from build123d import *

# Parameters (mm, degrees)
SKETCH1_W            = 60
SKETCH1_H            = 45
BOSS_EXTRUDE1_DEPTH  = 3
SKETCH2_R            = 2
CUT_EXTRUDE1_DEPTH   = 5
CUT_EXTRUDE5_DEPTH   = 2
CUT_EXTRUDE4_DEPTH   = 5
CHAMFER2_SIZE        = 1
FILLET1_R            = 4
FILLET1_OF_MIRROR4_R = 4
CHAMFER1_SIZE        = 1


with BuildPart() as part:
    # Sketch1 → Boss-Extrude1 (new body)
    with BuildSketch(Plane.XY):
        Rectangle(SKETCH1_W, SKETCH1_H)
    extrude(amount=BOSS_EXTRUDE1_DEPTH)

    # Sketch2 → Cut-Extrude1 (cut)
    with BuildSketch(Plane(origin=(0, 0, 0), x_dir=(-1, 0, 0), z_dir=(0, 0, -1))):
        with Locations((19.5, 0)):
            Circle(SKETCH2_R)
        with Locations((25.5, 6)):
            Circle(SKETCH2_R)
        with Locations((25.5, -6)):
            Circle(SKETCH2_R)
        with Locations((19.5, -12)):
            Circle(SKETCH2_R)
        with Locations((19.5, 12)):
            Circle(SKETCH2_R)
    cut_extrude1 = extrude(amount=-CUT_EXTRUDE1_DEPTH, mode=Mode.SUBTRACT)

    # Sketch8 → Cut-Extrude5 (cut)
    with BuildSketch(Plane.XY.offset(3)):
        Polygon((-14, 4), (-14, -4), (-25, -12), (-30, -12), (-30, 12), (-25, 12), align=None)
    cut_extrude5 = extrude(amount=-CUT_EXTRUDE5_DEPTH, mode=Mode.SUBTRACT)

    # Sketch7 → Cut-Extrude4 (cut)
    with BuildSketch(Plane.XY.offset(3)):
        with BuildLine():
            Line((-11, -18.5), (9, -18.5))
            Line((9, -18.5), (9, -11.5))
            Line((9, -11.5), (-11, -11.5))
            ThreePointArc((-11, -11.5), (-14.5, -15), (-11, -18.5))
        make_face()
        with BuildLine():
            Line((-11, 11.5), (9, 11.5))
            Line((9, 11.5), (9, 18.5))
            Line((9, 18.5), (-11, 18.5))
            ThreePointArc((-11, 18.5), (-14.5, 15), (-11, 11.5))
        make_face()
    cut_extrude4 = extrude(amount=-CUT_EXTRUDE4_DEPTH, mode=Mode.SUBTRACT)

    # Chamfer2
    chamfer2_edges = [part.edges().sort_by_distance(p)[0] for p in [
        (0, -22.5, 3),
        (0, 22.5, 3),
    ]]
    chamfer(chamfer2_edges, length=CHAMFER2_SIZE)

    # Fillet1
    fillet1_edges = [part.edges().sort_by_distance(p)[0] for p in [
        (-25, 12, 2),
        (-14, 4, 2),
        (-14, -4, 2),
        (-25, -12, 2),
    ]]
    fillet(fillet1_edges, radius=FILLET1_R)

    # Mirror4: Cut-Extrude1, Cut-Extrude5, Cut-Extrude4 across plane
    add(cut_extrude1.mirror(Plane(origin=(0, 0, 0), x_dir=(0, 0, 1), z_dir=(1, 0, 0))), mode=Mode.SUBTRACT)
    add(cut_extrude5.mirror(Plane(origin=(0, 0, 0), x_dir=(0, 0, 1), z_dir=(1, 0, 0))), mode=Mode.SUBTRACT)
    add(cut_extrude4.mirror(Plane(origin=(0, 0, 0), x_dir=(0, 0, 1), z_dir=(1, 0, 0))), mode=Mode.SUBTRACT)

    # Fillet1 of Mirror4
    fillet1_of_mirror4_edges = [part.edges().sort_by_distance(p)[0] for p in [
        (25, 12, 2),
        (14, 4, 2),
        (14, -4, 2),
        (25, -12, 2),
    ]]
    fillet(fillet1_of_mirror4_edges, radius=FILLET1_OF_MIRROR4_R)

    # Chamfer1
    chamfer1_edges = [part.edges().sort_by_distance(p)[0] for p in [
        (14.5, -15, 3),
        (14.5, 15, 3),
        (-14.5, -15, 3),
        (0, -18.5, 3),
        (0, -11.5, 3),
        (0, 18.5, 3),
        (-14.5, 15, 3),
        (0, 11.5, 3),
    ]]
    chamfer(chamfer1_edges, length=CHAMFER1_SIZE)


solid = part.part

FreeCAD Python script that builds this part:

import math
import FreeCAD as App
import Part
import Sketcher

V = App.Vector
Q = App.Units.Quantity


def edges_at(feature, points):
    """Names of the edges that pass closest to the given points."""
    edges = feature.Shape.Edges
    near = lambda p: min(range(len(edges)), key=lambda i: edges[i].distToShape(Part.Vertex(*p))[0])
    return sorted({f"Edge{near(p) + 1}" for p in points})

doc = App.newDocument("Part")
params = doc.addObject("Spreadsheet::Sheet", "Params")
for row, (alias, value) in enumerate([
    ("sketch1_width", "60 mm"),
    ("sketch1_height", "45 mm"),
    ("pad1_length", "3 mm"),
    ("sketch2_diameter", "4 mm"),
    ("pocket1_length", "5 mm"),
    ("sketch3_width", "5 mm"),
    ("sketch3_height", "8 mm"),
    ("sketch3_height2", "24 mm"),
    ("pocket2_length", "2 mm"),
    ("sketch4_radius", "3.5 mm"),
    ("sketch4_width", "20 mm"),
    ("pocket3_length", "5 mm"),
    ("chamfer_size", "1 mm"),
    ("fillet_radius", "4 mm"),
    ("fillet2_radius", "4 mm"),
    ("chamfer2_size", "1 mm"),
], start=1):
    params.set(f"A{row}", alias)
    params.set(f"B{row}", "=" + value)
    params.setAlias(f"B{row}", alias)

body = doc.addObject("PartDesign::Body", "Body")

# Sketch on XY plane
sketch1 = doc.addObject("Sketcher::SketchObject", "Sketch")
body.addObject(sketch1)
sketch1.AttachmentSupport = (doc.XY_Plane, [""])
sketch1.MapMode = "FlatFace"
sketch1.addGeometry([
    Part.LineSegment(V(-30, 22, 0), V(-30, -22, 0)),
    Part.LineSegment(V(-30, -22, 0), V(30, -22, 0)),
    Part.LineSegment(V(30, -22, 0), V(30, 22, 0)),
    Part.LineSegment(V(30, 22, 0), V(-30, 22, 0)),
], False)
sketch1.addConstraint([
    Sketcher.Constraint("Coincident", 0, 2, 1, 1),
    Sketcher.Constraint("Coincident", 1, 2, 2, 1),
    Sketcher.Constraint("Coincident", 2, 2, 3, 1),
    Sketcher.Constraint("Coincident", 3, 2, 0, 1),
    Sketcher.Constraint("Vertical", 0),
    Sketcher.Constraint("Horizontal", 1),
    Sketcher.Constraint("Vertical", 2),
    Sketcher.Constraint("Horizontal", 3),
    Sketcher.Constraint("Symmetric", 0, 2, 2, 2, -1, 1),
    Sketcher.Constraint("DistanceX", 1, 1, 1, 2, Q("60 mm")),
    Sketcher.Constraint("DistanceY", 0, 2, 0, 1, Q("45 mm")),
])
sketch1.setExpression("Constraints[9]", "Params.sketch1_width")
sketch1.setExpression("Constraints[10]", "Params.sketch1_height")
pad1 = doc.addObject("PartDesign::Pad", "Pad")
body.addObject(pad1)
pad1.Profile = sketch1
pad1.setExpression("Length", "Params.pad1_length")

# Sketch on XY plane
sketch2 = doc.addObject("Sketcher::SketchObject", "Sketch001")
body.addObject(sketch2)
sketch2.AttachmentSupport = (doc.XY_Plane, [""])
sketch2.MapMode = "FlatFace"
sketch2.addGeometry([
    Part.Circle(V(-19.5, 0, 0), V(0, 0, 1), 2),  # 0
    Part.Circle(V(-25.5, 6, 0), V(0, 0, 1), 2),  # 1
    Part.Circle(V(-25.5, -6, 0), V(0, 0, 1), 2),  # 2
    Part.Circle(V(-19.5, -12, 0), V(0, 0, 1), 2),  # 3
    Part.Circle(V(-19.5, 12, 0), V(0, 0, 1), 2),  # 4
], False)
sketch2.addConstraint([
    Sketcher.Constraint("Equal", 0, 1),
    Sketcher.Constraint("Equal", 1, 2),
    Sketcher.Constraint("Equal", 2, 3),
    Sketcher.Constraint("Equal", 3, 4),
    Sketcher.Constraint("Symmetric", 1, 3, 2, 3, -1),
    Sketcher.Constraint("Symmetric", 3, 3, 4, 3, -1),
    Sketcher.Constraint("PointOnObject", 0, 3, -1),
    Sketcher.Constraint("Vertical", 0, 3, 3, 3),
    Sketcher.Constraint("Diameter", 0, Q("4 mm")),
    Sketcher.Constraint("DistanceY", -1, 1, 1, 3, Q("6 mm")),
    Sketcher.Constraint("DistanceY", 3, 3, -1, 1, Q("12 mm")),
    Sketcher.Constraint("DistanceX", 1, 3, 0, 3, Q("6 mm")),
    Sketcher.Constraint("DistanceX", 0, 3, -1, 1, Q("19.5 mm")),
])
sketch2.setExpression("Constraints[8]", "Params.sketch2_diameter")
pocket1 = doc.addObject("PartDesign::Pocket", "Pocket")
body.addObject(pocket1)
pocket1.Profile = sketch2
pocket1.setExpression("Length", "Params.pocket1_length")
pocket1.Reversed = True

# Sketch on XY plane
sketch3 = doc.addObject("Sketcher::SketchObject", "Sketch002")
body.addObject(sketch3)
sketch3.AttachmentSupport = (doc.XY_Plane, [""])
sketch3.MapMode = "FlatFace"
sketch3.AttachmentOffset = App.Placement(V(0, 0, 3), App.Rotation())
sketch3.addGeometry([
    Part.LineSegment(V(-14, -4, 0), V(-14, 4, 0)),  # 0
    Part.LineSegment(V(-14, 4, 0), V(-25, 12, 0)),  # 1
    Part.LineSegment(V(-25, 12, 0), V(-30, 12, 0)),  # 2
    Part.LineSegment(V(-30, 12, 0), V(-30, -12, 0)),  # 3
    Part.LineSegment(V(-30, -12, 0), V(-25, -12, 0)),  # 4
    Part.LineSegment(V(-25, -12, 0), V(-14, -4, 0)),  # 5
], False)
sketch3.addConstraint([
    Sketcher.Constraint("Coincident", 0, 2, 1, 1),
    Sketcher.Constraint("Coincident", 1, 2, 2, 1),
    Sketcher.Constraint("Coincident", 2, 2, 3, 1),
    Sketcher.Constraint("Coincident", 3, 2, 4, 1),
    Sketcher.Constraint("Coincident", 4, 2, 5, 1),
    Sketcher.Constraint("Coincident", 5, 2, 0, 1),
    Sketcher.Constraint("Vertical", 0),
    Sketcher.Constraint("Horizontal", 2),
    Sketcher.Constraint("Vertical", 3),
    Sketcher.Constraint("Horizontal", 4),
    Sketcher.Constraint("Symmetric", 1, 2, 4, 2, -1),
    Sketcher.Constraint("Equal", 1, 5),
    Sketcher.Constraint("DistanceX", 2, 2, 2, 1, Q("5 mm")),
    Sketcher.Constraint("DistanceY", 0, 1, 0, 2, Q("8 mm")),
    Sketcher.Constraint("DistanceY", 3, 2, 3, 1, Q("24 mm")),
    Sketcher.Constraint("DistanceX", 0, 2, -1, 1, Q("14 mm")),
    Sketcher.Constraint("DistanceX", 1, 2, -1, 1, Q("25 mm")),
])
sketch3.setExpression("Constraints[12]", "Params.sketch3_width")
sketch3.setExpression("Constraints[13]", "Params.sketch3_height")
sketch3.setExpression("Constraints[14]", "Params.sketch3_height2")
pocket2 = doc.addObject("PartDesign::Pocket", "Pocket001")
body.addObject(pocket2)
pocket2.Profile = sketch3
pocket2.setExpression("Length", "Params.pocket2_length")

# Sketch on XY plane
sketch4 = doc.addObject("Sketcher::SketchObject", "Sketch003")
body.addObject(sketch4)
sketch4.AttachmentSupport = (doc.XY_Plane, [""])
sketch4.MapMode = "FlatFace"
sketch4.AttachmentOffset = App.Placement(V(0, 0, 3), App.Rotation())
sketch4.addGeometry([
    Part.LineSegment(V(-11, -18.5, 0), V(9, -18.5, 0)),  # 0
    Part.LineSegment(V(9, -18.5, 0), V(9, -11.5, 0)),  # 1
    Part.LineSegment(V(9, -11.5, 0), V(-11, -11.5, 0)),  # 2
    Part.ArcOfCircle(Part.Circle(V(-11, -15, 0), V(0, 0, 1), 3.5), math.radians(90), math.radians(270)),  # 3
    Part.LineSegment(V(-11, 11.5, 0), V(9, 11.5, 0)),  # 4
    Part.LineSegment(V(9, 11.5, 0), V(9, 18.5, 0)),  # 5
    Part.LineSegment(V(9, 18.5, 0), V(-11, 18.5, 0)),  # 6
    Part.ArcOfCircle(Part.Circle(V(-11, 15, 0), V(0, 0, 1), 3.5), math.radians(90), math.radians(270)),  # 7
], False)
sketch4.addConstraint([
    Sketcher.Constraint("Coincident", 0, 2, 1, 1),
    Sketcher.Constraint("Coincident", 1, 2, 2, 1),
    Sketcher.Constraint("Tangent", 2, 2, 3, 1),
    Sketcher.Constraint("Tangent", 3, 2, 0, 1),
    Sketcher.Constraint("Coincident", 4, 2, 5, 1),
    Sketcher.Constraint("Coincident", 5, 2, 6, 1),
    Sketcher.Constraint("Tangent", 6, 2, 7, 1),
    Sketcher.Constraint("Tangent", 7, 2, 4, 1),
    Sketcher.Constraint("Horizontal", 0),
    Sketcher.Constraint("Vertical", 1),
    Sketcher.Constraint("Horizontal", 2),
    Sketcher.Constraint("Horizontal", 4),
    Sketcher.Constraint("Vertical", 5),
    Sketcher.Constraint("Horizontal", 6),
    Sketcher.Constraint("Equal", 3, 7),
    Sketcher.Constraint("Symmetric", 3, 3, 7, 3, -1),
    Sketcher.Constraint("Vertical", 1, 2, 4, 2),
    Sketcher.Constraint("Radius", 3, Q("3.5 mm")),
    Sketcher.Constraint("DistanceX", 0, 1, 0, 2, Q("20 mm")),
    Sketcher.Constraint("DistanceX", 3, 3, -1, 1, Q("11 mm")),
    Sketcher.Constraint("DistanceY", 3, 3, -1, 1, Q("15 mm")),
])
sketch4.setExpression("Constraints[17]", "Params.sketch4_radius")
sketch4.setExpression("Constraints[18]", "Params.sketch4_width")
pocket3 = doc.addObject("PartDesign::Pocket", "Pocket002")
body.addObject(pocket3)
pocket3.Profile = sketch4
pocket3.setExpression("Length", "Params.pocket3_length")
doc.recompute()

chamfer = doc.addObject("PartDesign::Chamfer", "Chamfer")
body.addObject(chamfer)
chamfer.Base = (pocket3, edges_at(pocket3, [(0, -22.5, 3), (0, 22.5, 3)]))
chamfer.setExpression("Size", "Params.chamfer_size")
doc.recompute()

fillet = doc.addObject("PartDesign::Fillet", "Fillet")
body.addObject(fillet)
fillet.Base = (chamfer, edges_at(chamfer, [
    (-25, 12, 2),
    (-14, 4, 2),
    (-14, -4, 2),
    (-25, -12, 2),
]))
fillet.setExpression("Radius", "Params.fillet_radius")
doc.recompute()

mirrored = doc.addObject("PartDesign::Mirrored", "Mirrored")
body.addObject(mirrored)
mirrored.Originals = [pocket1, pocket2, pocket3]
mirrored.MirrorPlane = (doc.YZ_Plane, [""])
body.Tip = mirrored
doc.recompute()

fillet2 = doc.addObject("PartDesign::Fillet", "Fillet001")
body.addObject(fillet2)
fillet2.Base = (mirrored, edges_at(mirrored, [
    (25, 12, 2),
    (14, 4, 2),
    (14, -4, 2),
    (25, -12, 2),
]))
fillet2.setExpression("Radius", "Params.fillet2_radius")
doc.recompute()

chamfer2 = doc.addObject("PartDesign::Chamfer", "Chamfer001")
body.addObject(chamfer2)
chamfer2.Base = (fillet2, edges_at(fillet2, [
    (14.5, -15, 3),
    (14.5, 15, 3),
    (-14.5, -15, 3),
    (0, -18.5, 3),
    (0, -11.5, 3),
    (0, 18.5, 3),
    (-14.5, 15, 3),
    (0, 11.5, 3),
]))
chamfer2.setExpression("Size", "Params.chamfer2_size")

doc.recompute()
